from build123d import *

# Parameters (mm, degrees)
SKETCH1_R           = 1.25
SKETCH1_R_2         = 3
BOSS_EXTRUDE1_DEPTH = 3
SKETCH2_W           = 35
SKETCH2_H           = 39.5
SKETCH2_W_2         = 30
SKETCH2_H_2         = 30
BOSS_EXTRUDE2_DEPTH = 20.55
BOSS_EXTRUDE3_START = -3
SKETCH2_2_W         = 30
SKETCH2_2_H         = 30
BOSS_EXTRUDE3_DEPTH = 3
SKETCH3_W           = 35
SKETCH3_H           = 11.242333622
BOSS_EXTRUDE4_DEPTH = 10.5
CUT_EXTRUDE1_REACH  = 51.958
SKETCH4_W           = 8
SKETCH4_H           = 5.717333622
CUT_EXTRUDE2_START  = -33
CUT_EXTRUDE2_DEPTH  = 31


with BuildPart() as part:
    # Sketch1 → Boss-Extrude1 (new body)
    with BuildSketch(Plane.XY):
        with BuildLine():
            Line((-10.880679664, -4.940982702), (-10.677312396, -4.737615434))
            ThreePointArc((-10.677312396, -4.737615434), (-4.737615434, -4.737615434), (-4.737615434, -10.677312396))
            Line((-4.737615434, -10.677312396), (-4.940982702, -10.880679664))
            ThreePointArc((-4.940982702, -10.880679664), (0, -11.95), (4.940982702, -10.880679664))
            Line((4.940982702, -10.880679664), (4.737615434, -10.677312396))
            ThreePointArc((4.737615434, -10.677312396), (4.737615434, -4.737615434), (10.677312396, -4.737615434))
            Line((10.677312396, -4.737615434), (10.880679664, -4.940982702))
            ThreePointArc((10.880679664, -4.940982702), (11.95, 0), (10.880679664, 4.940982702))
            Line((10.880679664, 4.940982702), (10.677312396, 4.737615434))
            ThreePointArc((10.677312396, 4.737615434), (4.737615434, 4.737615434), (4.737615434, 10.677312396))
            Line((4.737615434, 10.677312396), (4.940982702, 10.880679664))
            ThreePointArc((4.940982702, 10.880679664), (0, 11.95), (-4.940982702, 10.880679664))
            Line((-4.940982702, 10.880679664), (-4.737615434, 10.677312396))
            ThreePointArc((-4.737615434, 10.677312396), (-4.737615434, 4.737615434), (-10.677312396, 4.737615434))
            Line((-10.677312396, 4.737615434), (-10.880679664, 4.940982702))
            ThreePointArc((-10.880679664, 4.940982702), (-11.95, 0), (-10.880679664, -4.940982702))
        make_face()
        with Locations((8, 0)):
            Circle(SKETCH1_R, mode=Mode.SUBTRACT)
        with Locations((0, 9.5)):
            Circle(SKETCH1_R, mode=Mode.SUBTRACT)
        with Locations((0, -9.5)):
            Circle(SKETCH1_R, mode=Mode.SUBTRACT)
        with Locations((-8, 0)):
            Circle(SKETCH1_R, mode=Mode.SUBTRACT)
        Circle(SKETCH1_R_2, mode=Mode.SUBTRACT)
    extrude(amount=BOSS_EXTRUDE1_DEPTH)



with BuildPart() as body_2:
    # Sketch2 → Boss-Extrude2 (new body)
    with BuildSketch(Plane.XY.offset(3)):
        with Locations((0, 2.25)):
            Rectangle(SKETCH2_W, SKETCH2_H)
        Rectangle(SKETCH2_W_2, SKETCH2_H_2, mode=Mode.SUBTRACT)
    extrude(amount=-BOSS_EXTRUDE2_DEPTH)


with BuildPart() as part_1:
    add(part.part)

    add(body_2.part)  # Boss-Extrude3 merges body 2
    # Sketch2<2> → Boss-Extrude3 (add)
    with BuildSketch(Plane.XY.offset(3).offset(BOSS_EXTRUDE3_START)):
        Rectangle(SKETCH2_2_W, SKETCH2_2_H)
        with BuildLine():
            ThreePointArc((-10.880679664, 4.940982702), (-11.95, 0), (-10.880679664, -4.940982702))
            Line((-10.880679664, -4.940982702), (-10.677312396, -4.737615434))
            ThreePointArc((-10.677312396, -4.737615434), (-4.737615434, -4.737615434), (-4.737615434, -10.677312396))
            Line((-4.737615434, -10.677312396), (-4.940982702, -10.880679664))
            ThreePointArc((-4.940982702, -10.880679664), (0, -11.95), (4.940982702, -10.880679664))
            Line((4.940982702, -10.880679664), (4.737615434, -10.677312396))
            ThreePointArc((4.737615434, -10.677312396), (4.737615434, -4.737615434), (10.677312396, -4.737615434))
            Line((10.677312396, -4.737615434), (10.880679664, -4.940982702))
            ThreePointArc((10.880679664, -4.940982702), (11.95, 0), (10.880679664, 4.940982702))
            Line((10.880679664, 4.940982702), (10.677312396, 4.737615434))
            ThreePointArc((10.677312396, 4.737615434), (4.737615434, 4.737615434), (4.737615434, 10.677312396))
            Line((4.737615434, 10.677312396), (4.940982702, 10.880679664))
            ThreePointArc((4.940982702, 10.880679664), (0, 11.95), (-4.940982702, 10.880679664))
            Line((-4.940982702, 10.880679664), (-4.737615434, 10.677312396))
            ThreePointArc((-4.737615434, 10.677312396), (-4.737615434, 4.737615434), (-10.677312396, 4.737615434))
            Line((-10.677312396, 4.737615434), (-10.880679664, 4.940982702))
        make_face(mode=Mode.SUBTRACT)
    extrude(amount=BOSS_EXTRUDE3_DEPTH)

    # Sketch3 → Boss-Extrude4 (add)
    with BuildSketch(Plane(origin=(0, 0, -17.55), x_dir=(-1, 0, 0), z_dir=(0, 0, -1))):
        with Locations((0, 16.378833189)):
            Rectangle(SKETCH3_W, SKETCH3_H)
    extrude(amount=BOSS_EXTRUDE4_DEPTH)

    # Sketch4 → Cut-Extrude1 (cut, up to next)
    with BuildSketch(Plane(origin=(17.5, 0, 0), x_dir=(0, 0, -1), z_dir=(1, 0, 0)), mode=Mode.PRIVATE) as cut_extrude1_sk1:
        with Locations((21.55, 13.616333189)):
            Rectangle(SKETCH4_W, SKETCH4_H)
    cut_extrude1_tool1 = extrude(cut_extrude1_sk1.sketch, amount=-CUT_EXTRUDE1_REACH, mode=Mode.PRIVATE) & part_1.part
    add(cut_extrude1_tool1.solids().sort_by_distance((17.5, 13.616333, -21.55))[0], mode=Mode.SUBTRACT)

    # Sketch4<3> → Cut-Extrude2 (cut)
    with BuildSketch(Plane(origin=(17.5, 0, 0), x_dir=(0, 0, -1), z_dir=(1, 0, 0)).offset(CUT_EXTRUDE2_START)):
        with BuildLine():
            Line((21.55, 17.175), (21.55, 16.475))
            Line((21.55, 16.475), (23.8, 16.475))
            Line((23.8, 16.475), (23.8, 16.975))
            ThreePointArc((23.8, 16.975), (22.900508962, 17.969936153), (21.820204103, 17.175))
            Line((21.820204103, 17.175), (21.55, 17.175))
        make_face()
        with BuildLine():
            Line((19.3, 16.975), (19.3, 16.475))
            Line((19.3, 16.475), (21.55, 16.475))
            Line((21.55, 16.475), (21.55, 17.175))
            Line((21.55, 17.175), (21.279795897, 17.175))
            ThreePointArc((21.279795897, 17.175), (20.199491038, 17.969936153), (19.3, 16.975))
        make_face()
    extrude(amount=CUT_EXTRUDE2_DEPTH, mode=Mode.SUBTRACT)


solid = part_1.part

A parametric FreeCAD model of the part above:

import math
import FreeCAD as App
import Part
import Sketcher

V = App.Vector
Q = App.Units.Quantity


def add_polygon(sketch, points):
    """Adds a closed chain of lines whose ends are joined by coincident constraints."""
    first, n = sketch.GeometryCount, len(points)
    for a, b in zip(points, points[1:] + points[:1]):
        sketch.addGeometry(Part.LineSegment(App.Vector(*a, 0), App.Vector(*b, 0)), False)
    for i in range(n):
        sketch.addConstraint(Sketcher.Constraint("Coincident", first + i, 2, first + (i + 1) % n, 1))

doc = App.newDocument("Part")
params = doc.addObject("Spreadsheet::Sheet", "Params")
for row, (alias, value) in enumerate([
    ("sketch1_diameter", "6 mm"),
    ("sketch1_diameter2", "2.5 mm"),
    ("sketch1_radius", "4.2 mm"),
    ("sketch1_radius2", "11.95 mm"),
    ("pad1_length", "3 mm"),
    ("sketch2_width", "35 mm"),
    ("sketch2_width2", "30 mm"),
    ("sketch2_height", "39.5 mm"),
    ("pad2_length", "20.55 mm"),
    ("sketch3_radius", "4.2 mm"),
    ("sketch3_width", "30 mm"),
    ("sketch3_radius2", "11.95 mm"),
    ("pad3_length", "3 mm"),
    ("sketch4_width", "35 mm"),
    ("pad4_length", "10.5 mm"),
    ("sketch5_height", "8 mm"),
    ("sketch6_radius", "1 mm"),
    ("sketch6_width", "0.5 mm"),
    ("sketch6_height", "4.5 mm"),
    ("sketch6_width2", "0.2 mm"),
    ("pocket2_length", "31 mm"),
], start=1):
    params.set(f"A{row}", alias)
    params.set(f"B{row}", "=" + value)
    params.setAlias(f"B{row}", alias)

body = doc.addObject("PartDesign::Body", "Body")

# Sketch on XY plane
sketch1 = doc.addObject("Sketcher::SketchObject", "Sketch")
body.addObject(sketch1)
sketch1.AttachmentSupport = (doc.XY_Plane, [""])
sketch1.MapMode = "FlatFace"
sketch1.addGeometry([
    Part.LineSegment(V(-10.88, -4.94, 0), V(-10.68, -4.74, 0)),  # 0
    Part.ArcOfCircle(Part.Circle(V(-7.71, -7.71, 0), V(0, 0, 1), 4.2), math.radians(-45), math.radians(135)),  # 1
    Part.LineSegment(V(-4.74, -10.68, 0), V(-4.94, -10.88, 0)),  # 2
    Part.ArcOfCircle(Part.Circle(V(0, 0, 0), V(0, 0, 1), 11.95), math.radians(-114), math.radians(-66)),  # 3
    Part.LineSegment(V(4.94, -10.88, 0), V(4.74, -10.68, 0)),  # 4
    Part.ArcOfCircle(Part.Circle(V(7.71, -7.71, 0), V(0, 0, 1), 4.2), math.radians(45), math.radians(225)),  # 5
    Part.LineSegment(V(10.68, -4.74, 0), V(10.88, -4.94, 0)),  # 6
    Part.ArcOfCircle(Part.Circle(V(0, 0, 0), V(0, 0, 1), 11.95), math.radians(-24), math.radians(24)),  # 7
    Part.LineSegment(V(10.88, 4.94, 0), V(10.68, 4.74, 0)),  # 8
    Part.ArcOfCircle(Part.Circle(V(7.71, 7.71, 0), V(0, 0, 1), 4.2), math.radians(135), math.radians(315)),  # 9
    Part.LineSegment(V(4.74, 10.68, 0), V(4.94, 10.88, 0)),  # 10
    Part.ArcOfCircle(Part.Circle(V(0, 0, 0), V(0, 0, 1), 11.95), math.radians(66), math.radians(114)),  # 11
    Part.LineSegment(V(-4.94, 10.88, 0), V(-4.74, 10.68, 0)),  # 12
    Part.ArcOfCircle(Part.Circle(V(-7.71, 7.71, 0), V(0, 0, 1), 4.2), math.radians(-135), math.radians(45)),  # 13
    Part.LineSegment(V(-10.68, 4.74, 0), V(-10.88, 4.94, 0)),  # 14
    Part.ArcOfCircle(Part.Circle(V(0, 0, 0), V(0, 0, 1), 11.95), math.radians(156), math.radians(204)),  # 15
    Part.Circle(V(0, -9.5, 0), V(0, 0, 1), 1.25),  # 16
    Part.Circle(V(-8, 0, 0), V(0, 0, 1), 1.25),  # 17
    Part.Circle(V(0, 0, 0), V(0, 0, 1), 3),  # 18
    Part.Circle(V(8, 0, 0), V(0, 0, 1), 1.25),  # 19
    Part.Circle(V(0, 9.5, 0), V(0, 0, 1), 1.25),  # 20
], False)
sketch1.addConstraint([
    Sketcher.Constraint("Tangent", 0, 2, 1, 2),
    Sketcher.Constraint("Tangent", 1, 1, 2, 1),
    Sketcher.Constraint("Coincident", 2, 2, 3, 1),
    Sketcher.Constraint("Coincident", 3, 2, 4, 1),
    Sketcher.Constraint("Tangent", 4, 2, 5, 2),
    Sketcher.Constraint("Tangent", 5, 1, 6, 1),
    Sketcher.Constraint("Coincident", 6, 2, 7, 1),
    Sketcher.Constraint("Coincident", 7, 2, 8, 1),
    Sketcher.Constraint("Tangent", 8, 2, 9, 2),
    Sketcher.Constraint("Tangent", 9, 1, 10, 1),
    Sketcher.Constraint("Coincident", 10, 2, 11, 1),
    Sketcher.Constraint("Coincident", 11, 2, 12, 1),
    Sketcher.Constraint("Tangent", 12, 2, 13, 2),
    Sketcher.Constraint("Tangent", 13, 1, 14, 1),
    Sketcher.Constraint("Coincident", 14, 2, 15, 1),
    Sketcher.Constraint("Coincident", 15, 2, 0, 1),
    Sketcher.Constraint("Coincident", 3, 3, -1, 1),
    Sketcher.Constraint("Coincident", 7, 3, -1, 1),
    Sketcher.Constraint("Coincident", 11, 3, -1, 1),
    Sketcher.Constraint("Coincident", 15, 3, -1, 1),
    Sketcher.Constraint("Coincident", 18, 3, -1, 1),
    Sketcher.Constraint("Equal", 1, 5),
    Sketcher.Constraint("Equal", 3, 7),
    Sketcher.Constraint("Equal", 5, 9),
    Sketcher.Constraint("Equal", 7, 11),
    Sketcher.Constraint("Equal", 9, 13),
    Sketcher.Constraint("Equal", 11, 15),
    Sketcher.Constraint("Equal", 16, 17),
    Sketcher.Constraint("Equal", 17, 19),
    Sketcher.Constraint("Equal", 19, 20),
    Sketcher.Constraint("Symmetric", 1, 3, 9, 3, -1, 1),
    Sketcher.Constraint("Symmetric", 5, 3, 13, 3, -1, 1),
    Sketcher.Constraint("Symmetric", 17, 3, 19, 3, -1, 1),
    Sketcher.Constraint("Symmetric", 16, 3, 20, 3, -1, 1),
    Sketcher.Constraint("Symmetric", 1, 3, 5, 3, -2),
    Sketcher.Constraint("PointOnObject", 16, 3, -2),
    Sketcher.Constraint("PointOnObject", 17, 3, -1),
    Sketcher.Constraint("Parallel", 0, 2),
    Sketcher.Constraint("Perpendicular", 2, 4),
    Sketcher.Constraint("Parallel", 4, 6),
    Sketcher.Constraint("Perpendicular", 6, 8),
    Sketcher.Constraint("Parallel", 8, 10),
    Sketcher.Constraint("Perpendicular", 10, 12),
    Sketcher.Constraint("Parallel", 12, 14),
    Sketcher.Constraint("Horizontal", 2, 2, 3, 2),
    Sketcher.Constraint("Equal", 0, 2),
    Sketcher.Constraint("Diameter", 18, Q("6 mm")),
    Sketcher.Constraint("Diameter", 16, Q("2.5 mm")),
    Sketcher.Constraint("Radius", 1, Q("4.2 mm")),
    Sketcher.Constraint("Radius", 3, Q("11.95 mm")),
    Sketcher.Constraint("DistanceX", 17, 3, -1, 1, Q("8 mm")),
    Sketcher.Constraint("DistanceY", 16, 3, -1, 1, Q("9.5 mm")),
    Sketcher.Constraint("DistanceX", 1, 1, 3, 2, Q("9.678598 mm")),
])
sketch1.setExpression("Constraints[46]", "Params.sketch1_diameter")
sketch1.setExpression("Constraints[47]", "Params.sketch1_diameter2")
sketch1.setExpression("Constraints[48]", "Params.sketch1_radius")
sketch1.setExpression("Constraints[49]", "Params.sketch1_radius2")
pad1 = doc.addObject("PartDesign::Pad", "Pad")
body.addObject(pad1)
pad1.Profile = sketch1
pad1.setExpression("Length", "Params.pad1_length")
body2 = doc.addObject("PartDesign::Body", "Body001")

# Sketch on XY plane
sketch2 = doc.addObject("Sketcher::SketchObject", "Sketch001")
body2.addObject(sketch2)
sketch2.AttachmentSupport = (doc.getObject("XY_Plane001"), [""])
sketch2.MapMode = "FlatFace"
sketch2.AttachmentOffset = App.Placement(V(0, 0, 3), App.Rotation())
add_polygon(sketch2, [(-18, 22), (-18, -18), (18, -18), (18, 22)])  # lines 0-3
add_polygon(sketch2, [(15, -15), (-15, -15), (-15, 15), (15, 15)])  # lines 4-7
sketch2.addConstraint([
    Sketcher.Constraint("Vertical", 0),
    Sketcher.Constraint("Horizontal", 1),
    Sketcher.Constraint("Vertical", 2),
    Sketcher.Constraint("Horizontal", 3),
    Sketcher.Constraint("Horizontal", 4),
    Sketcher.Constraint("Vertical", 5),
    Sketcher.Constraint("Horizontal", 6),
    Sketcher.Constraint("Vertical", 7),
    Sketcher.Constraint("Symmetric", 4, 2, 6, 2, -1, 1),
    Sketcher.Constraint("Equal", 6, 5),
    Sketcher.Constraint("DistanceX", 1, 1, 1, 2, Q("35 mm")),
    Sketcher.Constraint("DistanceX", 4, 2, 4, 1, Q("30 mm")),
    Sketcher.Constraint("DistanceY", 0, 2, 0, 1, Q("39.5 mm")),
    Sketcher.Constraint("DistanceY", -1, 1, 2, 2, Q("22 mm")),
    Sketcher.Constraint("DistanceX", 0, 2, -1, 1, Q("17.5 mm")),
])
sketch2.setExpression("Constraints[18]", "Params.sketch2_width")
sketch2.setExpression("Constraints[19]", "Params.sketch2_width2")
sketch2.setExpression("Constraints[20]", "Params.sketch2_height")
pad2 = doc.addObject("PartDesign::Pad", "Pad001")
body2.addObject(pad2)
pad2.Profile = sketch2
pad2.setExpression("Length", "Params.pad2_length")
pad2.Reversed = True
body.AllowCompound = True
doc.recompute()

boolean = doc.addObject("PartDesign::Boolean", "Boolean")
body.addObject(boolean)
boolean.Type = "Fuse"
boolean.addObjects([body2])

# Sketch on XY plane
sketch3 = doc.addObject("Sketcher::SketchObject", "Sketch002")
body.addObject(sketch3)
sketch3.AttachmentSupport = (doc.XY_Plane, [""])
sketch3.MapMode = "FlatFace"
add_polygon(sketch3, [(-15, 15), (-15, -15), (15, -15), (15, 15)])  # lines 0-3
sketch3.addGeometry(Part.ArcOfCircle(Part.Circle(V(0, 0, 0), V(0, 0, 1), 11.95), math.radians(156), math.radians(204)), False)  # 4
sketch3.addGeometry(Part.LineSegment(V(-10.88, 4.94, 0), V(-10.68, 4.74, 0)), False)  # 5
sketch3.addGeometry(Part.ArcOfCircle(Part.Circle(V(-7.71, 7.71, 0), V(0, 0, 1), 4.2), math.radians(-135), math.radians(45)), False)  # 6
sketch3.addGeometry(Part.LineSegment(V(-4.74, 10.68, 0), V(-4.94, 10.88, 0)), False)  # 7
sketch3.addGeometry(Part.ArcOfCircle(Part.Circle(V(0, 0, 0), V(0, 0, 1), 11.95), math.radians(66), math.radians(114)), False)  # 8
sketch3.addGeometry(Part.LineSegment(V(4.94, 10.88, 0), V(4.74, 10.68, 0)), False)  # 9
sketch3.addGeometry(Part.ArcOfCircle(Part.Circle(V(7.71, 7.71, 0), V(0, 0, 1), 4.2), math.radians(135), math.radians(315)), False)  # 10
sketch3.addGeometry(Part.LineSegment(V(10.68, 4.74, 0), V(10.88, 4.94, 0)), False)  # 11
sketch3.addGeometry(Part.ArcOfCircle(Part.Circle(V(0, 0, 0), V(0, 0, 1), 11.95), math.radians(-24), math.radians(24)), False)  # 12
sketch3.addGeometry(Part.LineSegment(V(10.88, -4.94, 0), V(10.68, -4.74, 0)), False)  # 13
sketch3.addGeometry(Part.ArcOfCircle(Part.Circle(V(7.71, -7.71, 0), V(0, 0, 1), 4.2), math.radians(45), math.radians(225)), False)  # 14
sketch3.addGeometry(Part.LineSegment(V(4.74, -10.68, 0), V(4.94, -10.88, 0)), False)  # 15
sketch3.addGeometry(Part.ArcOfCircle(Part.Circle(V(0, 0, 0), V(0, 0, 1), 11.95), math.radians(-114), math.radians(-66)), False)  # 16
sketch3.addGeometry(Part.LineSegment(V(-4.94, -10.88, 0), V(-4.74, -10.68, 0)), False)  # 17
sketch3.addGeometry(Part.ArcOfCircle(Part.Circle(V(-7.71, -7.71, 0), V(0, 0, 1), 4.2), math.radians(-45), math.radians(135)), False)  # 18
sketch3.addGeometry(Part.LineSegment(V(-10.68, -4.74, 0), V(-10.88, -4.94, 0)), False)  # 19
sketch3.addConstraint([
    Sketcher.Constraint("Coincident", 4, 1, 5, 1),
    Sketcher.Constraint("Tangent", 5, 2, 6, 1),
    Sketcher.Constraint("Tangent", 6, 2, 7, 1),
    Sketcher.Constraint("Coincident", 7, 2, 8, 2),
    Sketcher.Constraint("Coincident", 8, 1, 9, 1),
    Sketcher.Constraint("Tangent", 9, 2, 10, 1),
    Sketcher.Constraint("Tangent", 10, 2, 11, 1),
    Sketcher.Constraint("Coincident", 11, 2, 12, 2),
    Sketcher.Constraint("Coincident", 12, 1, 13, 1),
    Sketcher.Constraint("Tangent", 13, 2, 14, 1),
    Sketcher.Constraint("Tangent", 14, 2, 15, 1),
    Sketcher.Constraint("Coincident", 15, 2, 16, 2),
    Sketcher.Constraint("Coincident", 16, 1, 17, 1),
    Sketcher.Constraint("Tangent", 17, 2, 18, 1),
    Sketcher.Constraint("Tangent", 18, 2, 19, 1),
    Sketcher.Constraint("Coincident", 19, 2, 4, 2),
    Sketcher.Constraint("Vertical", 0),
    Sketcher.Constraint("Horizontal", 1),
    Sketcher.Constraint("Vertical", 2),
    Sketcher.Constraint("Horizontal", 3),
    Sketcher.Constraint("Coincident", 4, 3, -1, 1),
    Sketcher.Constraint("Coincident", 8, 3, -1, 1),
    Sketcher.Constraint("Coincident", 12, 3, -1, 1),
    Sketcher.Constraint("Coincident", 16, 3, -1, 1),
    Sketcher.Constraint("Equal", 4, 8),
    Sketcher.Constraint("Equal", 6, 10),
    Sketcher.Constraint("Equal", 8, 12),
    Sketcher.Constraint("Equal", 10, 14),
    Sketcher.Constraint("Equal", 12, 16),
    Sketcher.Constraint("Equal", 14, 18),
    Sketcher.Constraint("Symmetric", 6, 3, 14, 3, -1, 1),
    Sketcher.Constraint("Symmetric", 10, 3, 18, 3, -1, 1),
    Sketcher.Constraint("Symmetric", 0, 2, 2, 2, -1, 1),
    Sketcher.Constraint("Symmetric", 6, 3, 10, 3, -2),
    Sketcher.Constraint("Parallel", 5, 7),
    Sketcher.Constraint("Perpendicular", 7, 9),
    Sketcher.Constraint("Parallel", 9, 11),
    Sketcher.Constraint("Perpendicular", 11, 13),
    Sketcher.Constraint("Parallel", 13, 15),
    Sketcher.Constraint("Perpendicular", 15, 17),
    Sketcher.Constraint("Parallel", 17, 19),
    Sketcher.Constraint("Horizontal", 7, 2, 8, 1),
    Sketcher.Constraint("Equal", 3, 0),
    Sketcher.Constraint("Equal", 5, 7),
    Sketcher.Constraint("Radius", 6, Q("4.2 mm")),
    Sketcher.Constraint("DistanceX", 1, 1, 1, 2, Q("30 mm")),
    Sketcher.Constraint("Radius", 4, Q("11.95 mm")),
    Sketcher.Constraint("DistanceX", 6, 2, 8, 1, Q("9.678598 mm")),
])
sketch3.setExpression("Constraints[48]", "Params.sketch3_radius")
sketch3.setExpression("Constraints[49]", "Params.sketch3_width")
sketch3.setExpression("Constraints[50]", "Params.sketch3_radius2")
pad3 = doc.addObject("PartDesign::Pad", "Pad002")
body.addObject(pad3)
pad3.Profile = sketch3
pad3.setExpression("Length", "Params.pad3_length")

# Sketch on XY plane
sketch4 = doc.addObject("Sketcher::SketchObject", "Sketch003")
body.addObject(sketch4)
sketch4.AttachmentSupport = (doc.XY_Plane, [""])
sketch4.MapMode = "FlatFace"
sketch4.AttachmentOffset = App.Placement(V(0, 0, -17.55), App.Rotation())
add_polygon(sketch4, [(18, 22), (18, 11), (-18, 11), (-18, 22)])  # lines 0-3
sketch4.addConstraint([
    Sketcher.Constraint("Vertical", 0),
    Sketcher.Constraint("Horizontal", 1),
    Sketcher.Constraint("Vertical", 2),
    Sketcher.Constraint("Horizontal", 3),
    Sketcher.Constraint("DistanceX", 1, 2, 1, 1, Q("35 mm")),
    Sketcher.Constraint("DistanceY", -1, 1, 2, 2, Q("22 mm")),
    Sketcher.Constraint("DistanceX", -1, 1, 0, 2, Q("17.5 mm")),
    Sketcher.Constraint("DistanceY", 0, 2, 0, 1, Q("11.242334 mm")),
])
sketch4.setExpression("Constraints[8]", "Params.sketch4_width")
pad4 = doc.addObject("PartDesign::Pad", "Pad003")
body.addObject(pad4)
pad4.Profile = sketch4
pad4.setExpression("Length", "Params.pad4_length")
pad4.Reversed = True

# Sketch on YZ plane
sketch5 = doc.addObject("Sketcher::SketchObject", "Sketch004")
body.addObject(sketch5)
sketch5.AttachmentSupport = (doc.YZ_Plane, [""])
sketch5.MapMode = "FlatFace"
sketch5.AttachmentOffset = App.Placement(V(0, 0, 17.5), App.Rotation())
add_polygon(sketch5, [(16, -18), (11, -18), (11, -26), (16, -26)])  # lines 0-3
sketch5.addConstraint([
    Sketcher.Constraint("Horizontal", 0),
    Sketcher.Constraint("Vertical", 1),
    Sketcher.Constraint("Horizontal", 2),
    Sketcher.Constraint("Vertical", 3),
    Sketcher.Constraint("DistanceY", 1, 2, 1, 1, Q("8 mm")),
    Sketcher.Constraint("DistanceY", 0, 2, -1, 1, Q("17.55 mm")),
    Sketcher.Constraint("DistanceX", -1, 1, 2, 2, Q("16.475 mm")),
    Sketcher.Constraint("DistanceX", 0, 2, 0, 1, Q("5.717334 mm")),
])
sketch5.setExpression("Constraints[8]", "Params.sketch5_height")
pocket1 = doc.addObject("PartDesign::Pocket", "Pocket")
body.addObject(pocket1)
pocket1.Profile = sketch5
pocket1.Type = "UpToFirst"

# Sketch on YZ plane
sketch6 = doc.addObject("Sketcher::SketchObject", "Sketch005")
body.addObject(sketch6)
sketch6.AttachmentSupport = (doc.YZ_Plane, [""])
sketch6.MapMode = "FlatFace"
sketch6.AttachmentOffset = App.Placement(V(0, 0, -15.5), App.Rotation())
sketch6.addGeometry([
    Part.LineSegment(V(16.5, -23.8, 0), V(17, -23.8, 0)),  # 0
    Part.ArcOfCircle(Part.Circle(V(17, -22.8, 0), V(0, 0, 1), 1), math.radians(-90), math.radians(78)),  # 1
    Part.LineSegment(V(17.2, -21.8, 0), V(17.2, -21.3, 0)),  # 2
    Part.ArcOfCircle(Part.Circle(V(17, -20.3, 0), V(0, 0, 1), 1), math.radians(-78), math.radians(90)),  # 3
    Part.LineSegment(V(17, -19.3, 0), V(16.5, -19.3, 0)),  # 4
    Part.LineSegment(V(16.5, -19.3, 0), V(16.5, -23.8, 0)),  # 5
], False)
sketch6.addConstraint([
    Sketcher.Constraint("Tangent", 0, 2, 1, 1),
    Sketcher.Constraint("Coincident", 1, 2, 2, 1),
    Sketcher.Constraint("Coincident", 2, 2, 3, 1),
    Sketcher.Constraint("Tangent", 3, 2, 4, 1),
    Sketcher.Constraint("Coincident", 4, 2, 5, 1),
    Sketcher.Constraint("Coincident", 5, 2, 0, 1),
    Sketcher.Constraint("Horizontal", 0),
    Sketcher.Constraint("Vertical", 2),
    Sketcher.Constraint("Horizontal", 4),
    Sketcher.Constraint("Vertical", 5),
    Sketcher.Constraint("Equal", 1, 3),
    Sketcher.Constraint("Vertical", 1, 3, 3, 3),
    Sketcher.Constraint("Radius", 1, Q("1 mm")),
    Sketcher.Constraint("DistanceX", 0, 1, 0, 2, Q("0.5 mm")),
    Sketcher.Constraint("DistanceY", 5, 2, 5, 1, Q("4.5 mm")),
    Sketcher.Constraint("DistanceY", 1, 3, -1, 1, Q("22.8 mm")),
    Sketcher.Constraint("DistanceX", 1, 3, 1, 2, Q("0.2 mm")),
    Sketcher.Constraint("DistanceX", -1, 1, 1, 3, Q("16.975 mm")),
])
sketch6.setExpression("Constraints[12]", "Params.sketch6_radius")
sketch6.setExpression("Constraints[13]", "Params.sketch6_width")
sketch6.setExpression("Constraints[14]", "Params.sketch6_height")
sketch6.setExpression("Constraints[16]", "Params.sketch6_width2")
pocket2 = doc.addObject("PartDesign::Pocket", "Pocket001")
body.addObject(pocket2)
pocket2.Profile = sketch6
pocket2.setExpression("Length", "Params.pocket2_length")
pocket2.Reversed = True

doc.recompute()
